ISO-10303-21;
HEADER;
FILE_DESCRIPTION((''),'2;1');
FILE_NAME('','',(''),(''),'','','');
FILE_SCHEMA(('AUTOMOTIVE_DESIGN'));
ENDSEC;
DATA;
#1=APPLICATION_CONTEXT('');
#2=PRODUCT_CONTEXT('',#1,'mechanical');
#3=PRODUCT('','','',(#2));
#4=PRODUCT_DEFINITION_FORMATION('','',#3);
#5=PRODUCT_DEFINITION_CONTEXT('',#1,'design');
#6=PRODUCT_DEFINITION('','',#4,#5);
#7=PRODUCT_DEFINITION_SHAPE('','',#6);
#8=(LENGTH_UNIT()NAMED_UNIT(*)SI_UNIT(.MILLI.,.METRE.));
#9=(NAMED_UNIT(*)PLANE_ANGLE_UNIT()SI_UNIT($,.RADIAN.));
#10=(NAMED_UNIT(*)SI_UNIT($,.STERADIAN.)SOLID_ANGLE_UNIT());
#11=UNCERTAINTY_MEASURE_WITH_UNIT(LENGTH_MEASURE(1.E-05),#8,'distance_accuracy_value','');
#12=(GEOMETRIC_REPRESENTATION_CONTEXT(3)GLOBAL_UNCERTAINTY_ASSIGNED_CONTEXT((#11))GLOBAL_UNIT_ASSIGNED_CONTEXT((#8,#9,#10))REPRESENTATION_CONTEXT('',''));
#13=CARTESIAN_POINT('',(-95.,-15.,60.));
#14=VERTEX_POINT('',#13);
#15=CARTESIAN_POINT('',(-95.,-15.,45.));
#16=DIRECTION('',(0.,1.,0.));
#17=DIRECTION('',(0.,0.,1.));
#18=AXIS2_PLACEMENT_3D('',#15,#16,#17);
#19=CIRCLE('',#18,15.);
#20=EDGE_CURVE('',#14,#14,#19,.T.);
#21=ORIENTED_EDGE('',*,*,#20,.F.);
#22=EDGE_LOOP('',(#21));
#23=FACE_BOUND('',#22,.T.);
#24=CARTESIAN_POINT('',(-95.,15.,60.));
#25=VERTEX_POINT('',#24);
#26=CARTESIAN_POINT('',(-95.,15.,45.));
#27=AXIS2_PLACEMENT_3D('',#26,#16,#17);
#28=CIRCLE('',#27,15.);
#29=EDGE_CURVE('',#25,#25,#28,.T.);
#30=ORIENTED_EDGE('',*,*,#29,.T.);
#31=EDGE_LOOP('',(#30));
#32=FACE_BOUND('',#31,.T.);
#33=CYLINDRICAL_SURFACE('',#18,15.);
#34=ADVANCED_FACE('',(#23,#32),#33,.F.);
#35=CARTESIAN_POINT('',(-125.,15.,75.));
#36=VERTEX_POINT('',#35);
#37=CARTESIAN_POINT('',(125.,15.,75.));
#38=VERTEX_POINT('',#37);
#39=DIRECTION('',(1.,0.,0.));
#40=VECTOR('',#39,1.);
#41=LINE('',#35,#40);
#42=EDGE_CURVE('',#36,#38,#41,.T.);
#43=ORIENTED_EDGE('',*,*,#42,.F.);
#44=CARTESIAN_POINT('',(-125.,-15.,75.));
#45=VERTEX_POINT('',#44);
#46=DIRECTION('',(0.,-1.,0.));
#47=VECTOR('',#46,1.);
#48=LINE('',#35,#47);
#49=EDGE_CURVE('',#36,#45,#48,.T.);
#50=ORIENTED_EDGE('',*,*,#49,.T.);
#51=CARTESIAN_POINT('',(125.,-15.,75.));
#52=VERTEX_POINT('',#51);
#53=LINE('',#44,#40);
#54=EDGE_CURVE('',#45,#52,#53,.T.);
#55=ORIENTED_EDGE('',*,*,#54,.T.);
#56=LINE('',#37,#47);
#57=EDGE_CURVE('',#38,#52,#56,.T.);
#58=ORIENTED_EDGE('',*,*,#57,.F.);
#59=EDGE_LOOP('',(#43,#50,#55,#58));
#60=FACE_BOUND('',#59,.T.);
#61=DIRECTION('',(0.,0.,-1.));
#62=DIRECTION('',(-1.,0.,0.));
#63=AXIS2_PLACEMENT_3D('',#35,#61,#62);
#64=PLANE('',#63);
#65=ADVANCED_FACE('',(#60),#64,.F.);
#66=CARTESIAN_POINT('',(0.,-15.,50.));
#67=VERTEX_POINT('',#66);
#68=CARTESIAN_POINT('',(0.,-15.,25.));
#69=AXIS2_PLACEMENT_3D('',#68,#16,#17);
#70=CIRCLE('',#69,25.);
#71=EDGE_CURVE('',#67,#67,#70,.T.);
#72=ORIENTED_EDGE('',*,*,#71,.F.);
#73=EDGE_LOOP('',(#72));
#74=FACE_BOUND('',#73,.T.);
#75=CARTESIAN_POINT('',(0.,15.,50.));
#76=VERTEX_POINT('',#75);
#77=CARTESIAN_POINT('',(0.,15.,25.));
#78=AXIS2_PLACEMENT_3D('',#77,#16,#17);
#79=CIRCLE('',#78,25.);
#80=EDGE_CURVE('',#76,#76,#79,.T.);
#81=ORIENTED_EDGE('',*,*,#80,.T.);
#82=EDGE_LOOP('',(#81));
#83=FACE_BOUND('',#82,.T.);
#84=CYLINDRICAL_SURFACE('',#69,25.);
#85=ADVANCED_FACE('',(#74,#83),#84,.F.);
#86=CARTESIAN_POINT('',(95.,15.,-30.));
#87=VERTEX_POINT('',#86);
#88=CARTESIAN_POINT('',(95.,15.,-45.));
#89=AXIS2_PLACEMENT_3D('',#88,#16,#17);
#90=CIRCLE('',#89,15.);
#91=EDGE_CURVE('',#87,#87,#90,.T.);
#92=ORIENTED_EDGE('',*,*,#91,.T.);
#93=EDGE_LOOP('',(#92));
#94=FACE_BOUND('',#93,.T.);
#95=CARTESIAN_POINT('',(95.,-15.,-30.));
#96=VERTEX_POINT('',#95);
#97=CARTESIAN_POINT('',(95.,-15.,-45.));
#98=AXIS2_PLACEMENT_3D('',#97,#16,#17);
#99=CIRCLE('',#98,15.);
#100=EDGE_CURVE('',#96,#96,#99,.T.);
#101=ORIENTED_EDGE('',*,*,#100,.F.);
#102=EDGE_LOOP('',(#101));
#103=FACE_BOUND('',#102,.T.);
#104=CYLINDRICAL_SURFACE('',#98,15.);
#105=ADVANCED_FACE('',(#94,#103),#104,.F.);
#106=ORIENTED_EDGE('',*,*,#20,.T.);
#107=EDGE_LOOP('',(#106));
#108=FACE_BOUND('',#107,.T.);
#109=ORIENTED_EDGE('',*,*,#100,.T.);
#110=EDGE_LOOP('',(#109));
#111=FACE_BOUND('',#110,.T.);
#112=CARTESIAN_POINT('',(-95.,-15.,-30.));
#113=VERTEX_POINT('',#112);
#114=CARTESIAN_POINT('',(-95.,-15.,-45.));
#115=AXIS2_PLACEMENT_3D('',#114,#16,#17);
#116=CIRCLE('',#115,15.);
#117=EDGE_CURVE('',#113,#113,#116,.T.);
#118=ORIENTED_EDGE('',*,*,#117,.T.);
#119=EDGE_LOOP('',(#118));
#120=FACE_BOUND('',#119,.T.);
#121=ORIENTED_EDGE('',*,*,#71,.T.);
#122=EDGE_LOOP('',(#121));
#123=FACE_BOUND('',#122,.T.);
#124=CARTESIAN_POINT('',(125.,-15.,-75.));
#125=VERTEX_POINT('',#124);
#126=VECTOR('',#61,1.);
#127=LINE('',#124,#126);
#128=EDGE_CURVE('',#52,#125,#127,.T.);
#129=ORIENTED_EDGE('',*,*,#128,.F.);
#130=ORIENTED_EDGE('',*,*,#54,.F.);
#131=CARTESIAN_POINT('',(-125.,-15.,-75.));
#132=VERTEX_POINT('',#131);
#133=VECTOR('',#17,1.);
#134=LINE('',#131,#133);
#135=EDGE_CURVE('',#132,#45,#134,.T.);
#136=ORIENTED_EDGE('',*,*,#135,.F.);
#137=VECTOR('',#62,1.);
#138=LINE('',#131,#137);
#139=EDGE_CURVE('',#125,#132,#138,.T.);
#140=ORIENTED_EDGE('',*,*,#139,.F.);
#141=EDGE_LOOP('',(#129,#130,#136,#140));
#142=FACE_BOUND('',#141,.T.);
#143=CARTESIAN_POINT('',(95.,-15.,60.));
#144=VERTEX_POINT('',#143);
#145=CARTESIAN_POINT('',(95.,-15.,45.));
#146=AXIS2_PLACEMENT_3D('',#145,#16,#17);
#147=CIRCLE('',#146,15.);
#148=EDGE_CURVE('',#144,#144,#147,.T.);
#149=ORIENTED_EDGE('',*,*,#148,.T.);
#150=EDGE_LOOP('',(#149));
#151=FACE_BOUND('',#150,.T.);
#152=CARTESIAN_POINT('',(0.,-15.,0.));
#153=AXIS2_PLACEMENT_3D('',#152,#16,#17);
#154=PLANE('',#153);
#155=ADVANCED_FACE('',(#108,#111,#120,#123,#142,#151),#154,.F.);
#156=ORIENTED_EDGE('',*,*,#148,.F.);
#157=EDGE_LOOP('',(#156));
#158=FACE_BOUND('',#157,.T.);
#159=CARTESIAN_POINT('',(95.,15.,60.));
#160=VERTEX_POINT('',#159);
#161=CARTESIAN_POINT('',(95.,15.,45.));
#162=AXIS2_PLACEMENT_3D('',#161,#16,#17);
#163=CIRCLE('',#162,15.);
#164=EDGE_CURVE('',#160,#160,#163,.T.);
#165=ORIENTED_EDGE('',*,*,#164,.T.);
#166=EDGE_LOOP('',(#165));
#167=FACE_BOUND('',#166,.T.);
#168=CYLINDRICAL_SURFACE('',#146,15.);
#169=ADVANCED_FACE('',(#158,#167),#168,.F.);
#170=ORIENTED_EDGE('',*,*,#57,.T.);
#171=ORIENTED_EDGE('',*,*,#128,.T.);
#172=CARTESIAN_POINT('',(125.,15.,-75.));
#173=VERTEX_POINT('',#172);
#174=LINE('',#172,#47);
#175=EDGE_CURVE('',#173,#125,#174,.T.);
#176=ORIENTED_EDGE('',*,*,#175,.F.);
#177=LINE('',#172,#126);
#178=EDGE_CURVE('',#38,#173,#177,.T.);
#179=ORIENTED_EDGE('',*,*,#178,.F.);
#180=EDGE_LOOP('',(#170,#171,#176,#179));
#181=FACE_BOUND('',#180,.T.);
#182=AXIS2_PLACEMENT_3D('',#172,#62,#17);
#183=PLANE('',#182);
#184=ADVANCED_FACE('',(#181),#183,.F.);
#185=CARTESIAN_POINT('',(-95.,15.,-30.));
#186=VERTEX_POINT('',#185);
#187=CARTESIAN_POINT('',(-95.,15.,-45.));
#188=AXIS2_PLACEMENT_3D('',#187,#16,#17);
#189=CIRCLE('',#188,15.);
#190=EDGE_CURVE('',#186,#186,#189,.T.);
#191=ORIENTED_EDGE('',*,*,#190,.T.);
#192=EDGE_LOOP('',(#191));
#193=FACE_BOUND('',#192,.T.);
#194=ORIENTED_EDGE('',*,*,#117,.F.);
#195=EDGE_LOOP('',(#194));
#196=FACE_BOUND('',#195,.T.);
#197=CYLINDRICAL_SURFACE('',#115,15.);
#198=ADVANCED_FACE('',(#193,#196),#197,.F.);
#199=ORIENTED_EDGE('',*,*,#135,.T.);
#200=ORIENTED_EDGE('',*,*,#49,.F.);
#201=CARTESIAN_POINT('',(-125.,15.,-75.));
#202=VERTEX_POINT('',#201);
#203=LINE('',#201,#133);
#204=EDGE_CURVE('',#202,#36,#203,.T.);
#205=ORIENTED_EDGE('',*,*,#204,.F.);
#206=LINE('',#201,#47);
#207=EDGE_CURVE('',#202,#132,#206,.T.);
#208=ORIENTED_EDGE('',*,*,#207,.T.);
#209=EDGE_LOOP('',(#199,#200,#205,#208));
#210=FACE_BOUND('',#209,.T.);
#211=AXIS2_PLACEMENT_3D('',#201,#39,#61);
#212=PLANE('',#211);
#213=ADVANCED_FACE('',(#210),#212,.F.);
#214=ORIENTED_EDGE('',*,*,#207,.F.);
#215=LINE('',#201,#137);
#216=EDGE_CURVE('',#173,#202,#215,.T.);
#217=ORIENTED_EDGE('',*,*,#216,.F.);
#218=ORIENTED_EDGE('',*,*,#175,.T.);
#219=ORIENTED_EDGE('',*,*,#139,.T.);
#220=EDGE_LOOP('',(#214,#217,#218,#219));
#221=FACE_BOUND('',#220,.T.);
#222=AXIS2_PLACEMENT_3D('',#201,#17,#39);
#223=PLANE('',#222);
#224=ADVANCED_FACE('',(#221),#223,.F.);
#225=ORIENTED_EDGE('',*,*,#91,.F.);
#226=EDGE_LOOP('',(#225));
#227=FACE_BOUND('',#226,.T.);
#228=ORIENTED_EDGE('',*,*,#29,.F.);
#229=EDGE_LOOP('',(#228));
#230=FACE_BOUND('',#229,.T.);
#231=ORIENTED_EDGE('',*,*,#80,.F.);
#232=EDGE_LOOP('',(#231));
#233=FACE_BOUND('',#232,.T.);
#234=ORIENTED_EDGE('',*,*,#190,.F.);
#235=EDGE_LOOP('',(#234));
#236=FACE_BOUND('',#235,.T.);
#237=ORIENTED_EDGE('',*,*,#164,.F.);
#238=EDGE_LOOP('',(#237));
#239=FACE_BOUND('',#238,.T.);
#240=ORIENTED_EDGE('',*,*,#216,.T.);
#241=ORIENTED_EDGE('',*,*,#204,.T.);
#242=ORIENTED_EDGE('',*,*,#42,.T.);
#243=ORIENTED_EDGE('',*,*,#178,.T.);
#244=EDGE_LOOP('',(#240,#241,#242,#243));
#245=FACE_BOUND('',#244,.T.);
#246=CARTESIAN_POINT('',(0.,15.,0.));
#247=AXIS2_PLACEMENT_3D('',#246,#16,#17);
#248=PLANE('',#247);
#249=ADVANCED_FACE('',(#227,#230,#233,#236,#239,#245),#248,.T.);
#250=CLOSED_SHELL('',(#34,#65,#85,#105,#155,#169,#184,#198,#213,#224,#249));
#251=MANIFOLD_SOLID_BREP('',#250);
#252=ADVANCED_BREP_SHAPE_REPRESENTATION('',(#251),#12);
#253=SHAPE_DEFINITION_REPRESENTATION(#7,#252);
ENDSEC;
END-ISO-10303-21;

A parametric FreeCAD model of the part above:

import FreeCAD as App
import Part
import Sketcher

V = App.Vector
Q = App.Units.Quantity


def add_polygon(sketch, points):
    """Adds a closed chain of lines whose ends are joined by coincident constraints."""
    first, n = sketch.GeometryCount, len(points)
    for a, b in zip(points, points[1:] + points[:1]):
        sketch.addGeometry(Part.LineSegment(App.Vector(*a, 0), App.Vector(*b, 0)), False)
    for i in range(n):
        sketch.addConstraint(Sketcher.Constraint("Coincident", first + i, 2, first + (i + 1) % n, 1))

doc = App.newDocument("Part")
body = doc.addObject("PartDesign::Body", "Body")

# Sketch on XZ plane
sketch1 = body.newObject("Sketcher::SketchObject", "Sketch")
sketch1.AttachmentSupport = (doc.getObject("XZ_Plane"), [""])
sketch1.MapMode = "FlatFace"
add_polygon(sketch1, [(-125, -75), (-125, 75), (125, 75), (125, -75)])  # lines 0-3
sketch1.addConstraint([
    Sketcher.Constraint("Vertical", 0),
    Sketcher.Constraint("Horizontal", 1),
    Sketcher.Constraint("Vertical", 2),
    Sketcher.Constraint("Horizontal", 3),
    Sketcher.Constraint("Symmetric", 0, 2, 2, 2, -1, 1),
    Sketcher.Constraint("DistanceX", 1, 1, 1, 2, Q("250 mm")),
    Sketcher.Constraint("DistanceY", 0, 1, 0, 2, Q("150 mm")),
])
pad1 = body.newObject("PartDesign::Pad", "Pad")
pad1.Profile = sketch1
pad1.Length = 30
pad1.Midplane = True

# Sketch on XZ plane
sketch2 = body.newObject("Sketcher::SketchObject", "Sketch001")
sketch2.AttachmentSupport = (doc.getObject("XZ_Plane"), [""])
sketch2.MapMode = "FlatFace"
sketch2.AttachmentOffset = App.Placement(V(0, 0, -15), App.Rotation())
sketch2.addGeometry(Part.Circle(V(0, 25, 0), V(0, 0, 1), 25), False)
sketch2.addConstraint([
    Sketcher.Constraint("PointOnObject", 0, 3, -2),
    Sketcher.Constraint("Diameter", 0, Q("50 mm")),
    Sketcher.Constraint("DistanceY", -1, 1, 0, 3, Q("25 mm")),
])
pocket1 = body.newObject("PartDesign::Pocket", "Pocket")
pocket1.Profile = sketch2
pocket1.Type = "ThroughAll"
pocket1.Reversed = True

# Sketch on XZ plane
sketch3 = body.newObject("Sketcher::SketchObject", "Sketch002")
sketch3.AttachmentSupport = (doc.getObject("XZ_Plane"), [""])
sketch3.MapMode = "FlatFace"
sketch3.AttachmentOffset = App.Placement(V(0, 0, -15), App.Rotation())
sketch3.addGeometry([
    Part.Circle(V(-95, 45, 0), V(0, 0, 1), 15),
    Part.Circle(V(95, 45, 0), V(0, 0, 1), 15),
    Part.Circle(V(95, -45, 0), V(0, 0, 1), 15),
    Part.Circle(V(-95, -45, 0), V(0, 0, 1), 15),
], False)
sketch3.addConstraint([
    Sketcher.Constraint("Equal", 0, 1),
    Sketcher.Constraint("Equal", 1, 2),
    Sketcher.Constraint("Equal", 2, 3),
    Sketcher.Constraint("Symmetric", 0, 3, 2, 3, -1, 1),
    Sketcher.Constraint("Symmetric", 1, 3, 3, 3, -1, 1),
    Sketcher.Constraint("Symmetric", 0, 3, 1, 3, -2),
    Sketcher.Constraint("Diameter", 0, Q("30 mm")),
    Sketcher.Constraint("DistanceX", 0, 3, -1, 1, Q("95 mm")),
    Sketcher.Constraint("DistanceY", -1, 1, 0, 3, Q("45 mm")),
])
pocket2 = body.newObject("PartDesign::Pocket", "Pocket001")
pocket2.Profile = sketch3
pocket2.Type = "ThroughAll"
pocket2.Reversed = True

doc.recompute()
